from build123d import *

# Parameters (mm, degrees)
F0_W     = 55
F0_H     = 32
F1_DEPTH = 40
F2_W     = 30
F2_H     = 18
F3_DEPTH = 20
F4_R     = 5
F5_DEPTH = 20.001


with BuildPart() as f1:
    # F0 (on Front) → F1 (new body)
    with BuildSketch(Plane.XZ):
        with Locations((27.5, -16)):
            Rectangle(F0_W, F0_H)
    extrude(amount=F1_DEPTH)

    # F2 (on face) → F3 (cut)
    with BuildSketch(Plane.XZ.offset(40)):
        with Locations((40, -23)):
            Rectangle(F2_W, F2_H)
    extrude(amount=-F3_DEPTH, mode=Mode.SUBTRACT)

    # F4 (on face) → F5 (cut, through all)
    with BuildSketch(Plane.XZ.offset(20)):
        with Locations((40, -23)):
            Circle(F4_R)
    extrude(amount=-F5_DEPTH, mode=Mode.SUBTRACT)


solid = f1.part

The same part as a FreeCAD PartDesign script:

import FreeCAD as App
import Part
import Sketcher
from FreeCAD import Vector
Q = App.Units.Quantity

doc = App.newDocument("Part")
body = doc.addObject("PartDesign::Body", "Body")

# Sketch on XZ plane
sketch1 = body.newObject("Sketcher::SketchObject", "Sketch")
sketch1.AttachmentSupport = (doc.getObject("XZ_Plane"), [""])
sketch1.MapMode = "FlatFace"
sketch1.addGeometry(Part.LineSegment(Vector(0, 0, 0), Vector(0, -32, 0)), False)
sketch1.addGeometry(Part.LineSegment(Vector(0, -32, 0), Vector(55, -32, 0)), False)
sketch1.addGeometry(Part.LineSegment(Vector(55, -32, 0), Vector(55, 0, 0)), False)
sketch1.addGeometry(Part.LineSegment(Vector(55, 0, 0), Vector(0, 0, 0)), False)
sketch1.addConstraint(Sketcher.Constraint("Coincident", 0, 2, 1, 1))
sketch1.addConstraint(Sketcher.Constraint("Coincident", 1, 2, 2, 1))
sketch1.addConstraint(Sketcher.Constraint("Coincident", 2, 2, 3, 1))
sketch1.addConstraint(Sketcher.Constraint("Coincident", 3, 2, 0, 1))
sketch1.addConstraint(Sketcher.Constraint("Vertical", 0))
sketch1.addConstraint(Sketcher.Constraint("Horizontal", 1))
sketch1.addConstraint(Sketcher.Constraint("Vertical", 2))
sketch1.addConstraint(Sketcher.Constraint("Horizontal", 3))
sketch1.addConstraint(Sketcher.Constraint("Coincident", 3, 2, -1, 1))
sketch1.addConstraint(Sketcher.Constraint("DistanceX", 1, 1, 1, 2, Q("55 mm")))
sketch1.addConstraint(Sketcher.Constraint("DistanceY", 0, 2, 0, 1, Q("32 mm")))
pad1 = body.newObject("PartDesign::Pad", "Pad")
pad1.Profile = sketch1
pad1.Length = 40

# Sketch on XZ plane
sketch2 = body.newObject("Sketcher::SketchObject", "Sketch001")
sketch2.AttachmentSupport = (doc.getObject("XZ_Plane"), [""])
sketch2.MapMode = "FlatFace"
sketch2.AttachmentOffset = App.Placement(Vector(0, 0, 40), App.Rotation())
sketch2.addGeometry(Part.LineSegment(Vector(25, -14, 0), Vector(25, -32, 0)), False)
sketch2.addGeometry(Part.LineSegment(Vector(25, -32, 0), Vector(55, -32, 0)), False)
sketch2.addGeometry(Part.LineSegment(Vector(55, -32, 0), Vector(55, -14, 0)), False)
sketch2.addGeometry(Part.LineSegment(Vector(55, -14, 0), Vector(25, -14, 0)), False)
sketch2.addConstraint(Sketcher.Constraint("Coincident", 0, 2, 1, 1))
sketch2.addConstraint(Sketcher.Constraint("Coincident", 1, 2, 2, 1))
sketch2.addConstraint(Sketcher.Constraint("Coincident", 2, 2, 3, 1))
sketch2.addConstraint(Sketcher.Constraint("Coincident", 3, 2, 0, 1))
sketch2.addConstraint(Sketcher.Constraint("Vertical", 0))
sketch2.addConstraint(Sketcher.Constraint("Horizontal", 1))
sketch2.addConstraint(Sketcher.Constraint("Vertical", 2))
sketch2.addConstraint(Sketcher.Constraint("Horizontal", 3))
sketch2.addConstraint(Sketcher.Constraint("DistanceX", 1, 1, 1, 2, Q("30 mm")))
sketch2.addConstraint(Sketcher.Constraint("DistanceY", 0, 2, 0, 1, Q("18 mm")))
sketch2.addConstraint(Sketcher.Constraint("DistanceX", -1, 1, 0, 2, Q("25 mm")))
sketch2.addConstraint(Sketcher.Constraint("DistanceY", 0, 2, -1, 1, Q("32 mm")))
pocket1 = body.newObject("PartDesign::Pocket", "Pocket")
pocket1.Profile = sketch2
pocket1.Length = 20

# Sketch on XZ plane
sketch3 = body.newObject("Sketcher::SketchObject", "Sketch002")
sketch3.AttachmentSupport = (doc.getObject("XZ_Plane"), [""])
sketch3.MapMode = "FlatFace"
sketch3.AttachmentOffset = App.Placement(Vector(0, 0, 20), App.Rotation())
sketch3.addGeometry(Part.Circle(Vector(40, -23, 0), Vector(0, 0, 1), 5), False)
sketch3.addConstraint(Sketcher.Constraint("Diameter", 0, Q("10 mm")))
sketch3.addConstraint(Sketcher.Constraint("DistanceX", -1, 1, 0, 3, Q("40 mm")))
sketch3.addConstraint(Sketcher.Constraint("DistanceY", 0, 3, -1, 1, Q("23 mm")))
pocket2 = body.newObject("PartDesign::Pocket", "Pocket001")
pocket2.Profile = sketch3
pocket2.Type = "ThroughAll"

doc.recompute()
